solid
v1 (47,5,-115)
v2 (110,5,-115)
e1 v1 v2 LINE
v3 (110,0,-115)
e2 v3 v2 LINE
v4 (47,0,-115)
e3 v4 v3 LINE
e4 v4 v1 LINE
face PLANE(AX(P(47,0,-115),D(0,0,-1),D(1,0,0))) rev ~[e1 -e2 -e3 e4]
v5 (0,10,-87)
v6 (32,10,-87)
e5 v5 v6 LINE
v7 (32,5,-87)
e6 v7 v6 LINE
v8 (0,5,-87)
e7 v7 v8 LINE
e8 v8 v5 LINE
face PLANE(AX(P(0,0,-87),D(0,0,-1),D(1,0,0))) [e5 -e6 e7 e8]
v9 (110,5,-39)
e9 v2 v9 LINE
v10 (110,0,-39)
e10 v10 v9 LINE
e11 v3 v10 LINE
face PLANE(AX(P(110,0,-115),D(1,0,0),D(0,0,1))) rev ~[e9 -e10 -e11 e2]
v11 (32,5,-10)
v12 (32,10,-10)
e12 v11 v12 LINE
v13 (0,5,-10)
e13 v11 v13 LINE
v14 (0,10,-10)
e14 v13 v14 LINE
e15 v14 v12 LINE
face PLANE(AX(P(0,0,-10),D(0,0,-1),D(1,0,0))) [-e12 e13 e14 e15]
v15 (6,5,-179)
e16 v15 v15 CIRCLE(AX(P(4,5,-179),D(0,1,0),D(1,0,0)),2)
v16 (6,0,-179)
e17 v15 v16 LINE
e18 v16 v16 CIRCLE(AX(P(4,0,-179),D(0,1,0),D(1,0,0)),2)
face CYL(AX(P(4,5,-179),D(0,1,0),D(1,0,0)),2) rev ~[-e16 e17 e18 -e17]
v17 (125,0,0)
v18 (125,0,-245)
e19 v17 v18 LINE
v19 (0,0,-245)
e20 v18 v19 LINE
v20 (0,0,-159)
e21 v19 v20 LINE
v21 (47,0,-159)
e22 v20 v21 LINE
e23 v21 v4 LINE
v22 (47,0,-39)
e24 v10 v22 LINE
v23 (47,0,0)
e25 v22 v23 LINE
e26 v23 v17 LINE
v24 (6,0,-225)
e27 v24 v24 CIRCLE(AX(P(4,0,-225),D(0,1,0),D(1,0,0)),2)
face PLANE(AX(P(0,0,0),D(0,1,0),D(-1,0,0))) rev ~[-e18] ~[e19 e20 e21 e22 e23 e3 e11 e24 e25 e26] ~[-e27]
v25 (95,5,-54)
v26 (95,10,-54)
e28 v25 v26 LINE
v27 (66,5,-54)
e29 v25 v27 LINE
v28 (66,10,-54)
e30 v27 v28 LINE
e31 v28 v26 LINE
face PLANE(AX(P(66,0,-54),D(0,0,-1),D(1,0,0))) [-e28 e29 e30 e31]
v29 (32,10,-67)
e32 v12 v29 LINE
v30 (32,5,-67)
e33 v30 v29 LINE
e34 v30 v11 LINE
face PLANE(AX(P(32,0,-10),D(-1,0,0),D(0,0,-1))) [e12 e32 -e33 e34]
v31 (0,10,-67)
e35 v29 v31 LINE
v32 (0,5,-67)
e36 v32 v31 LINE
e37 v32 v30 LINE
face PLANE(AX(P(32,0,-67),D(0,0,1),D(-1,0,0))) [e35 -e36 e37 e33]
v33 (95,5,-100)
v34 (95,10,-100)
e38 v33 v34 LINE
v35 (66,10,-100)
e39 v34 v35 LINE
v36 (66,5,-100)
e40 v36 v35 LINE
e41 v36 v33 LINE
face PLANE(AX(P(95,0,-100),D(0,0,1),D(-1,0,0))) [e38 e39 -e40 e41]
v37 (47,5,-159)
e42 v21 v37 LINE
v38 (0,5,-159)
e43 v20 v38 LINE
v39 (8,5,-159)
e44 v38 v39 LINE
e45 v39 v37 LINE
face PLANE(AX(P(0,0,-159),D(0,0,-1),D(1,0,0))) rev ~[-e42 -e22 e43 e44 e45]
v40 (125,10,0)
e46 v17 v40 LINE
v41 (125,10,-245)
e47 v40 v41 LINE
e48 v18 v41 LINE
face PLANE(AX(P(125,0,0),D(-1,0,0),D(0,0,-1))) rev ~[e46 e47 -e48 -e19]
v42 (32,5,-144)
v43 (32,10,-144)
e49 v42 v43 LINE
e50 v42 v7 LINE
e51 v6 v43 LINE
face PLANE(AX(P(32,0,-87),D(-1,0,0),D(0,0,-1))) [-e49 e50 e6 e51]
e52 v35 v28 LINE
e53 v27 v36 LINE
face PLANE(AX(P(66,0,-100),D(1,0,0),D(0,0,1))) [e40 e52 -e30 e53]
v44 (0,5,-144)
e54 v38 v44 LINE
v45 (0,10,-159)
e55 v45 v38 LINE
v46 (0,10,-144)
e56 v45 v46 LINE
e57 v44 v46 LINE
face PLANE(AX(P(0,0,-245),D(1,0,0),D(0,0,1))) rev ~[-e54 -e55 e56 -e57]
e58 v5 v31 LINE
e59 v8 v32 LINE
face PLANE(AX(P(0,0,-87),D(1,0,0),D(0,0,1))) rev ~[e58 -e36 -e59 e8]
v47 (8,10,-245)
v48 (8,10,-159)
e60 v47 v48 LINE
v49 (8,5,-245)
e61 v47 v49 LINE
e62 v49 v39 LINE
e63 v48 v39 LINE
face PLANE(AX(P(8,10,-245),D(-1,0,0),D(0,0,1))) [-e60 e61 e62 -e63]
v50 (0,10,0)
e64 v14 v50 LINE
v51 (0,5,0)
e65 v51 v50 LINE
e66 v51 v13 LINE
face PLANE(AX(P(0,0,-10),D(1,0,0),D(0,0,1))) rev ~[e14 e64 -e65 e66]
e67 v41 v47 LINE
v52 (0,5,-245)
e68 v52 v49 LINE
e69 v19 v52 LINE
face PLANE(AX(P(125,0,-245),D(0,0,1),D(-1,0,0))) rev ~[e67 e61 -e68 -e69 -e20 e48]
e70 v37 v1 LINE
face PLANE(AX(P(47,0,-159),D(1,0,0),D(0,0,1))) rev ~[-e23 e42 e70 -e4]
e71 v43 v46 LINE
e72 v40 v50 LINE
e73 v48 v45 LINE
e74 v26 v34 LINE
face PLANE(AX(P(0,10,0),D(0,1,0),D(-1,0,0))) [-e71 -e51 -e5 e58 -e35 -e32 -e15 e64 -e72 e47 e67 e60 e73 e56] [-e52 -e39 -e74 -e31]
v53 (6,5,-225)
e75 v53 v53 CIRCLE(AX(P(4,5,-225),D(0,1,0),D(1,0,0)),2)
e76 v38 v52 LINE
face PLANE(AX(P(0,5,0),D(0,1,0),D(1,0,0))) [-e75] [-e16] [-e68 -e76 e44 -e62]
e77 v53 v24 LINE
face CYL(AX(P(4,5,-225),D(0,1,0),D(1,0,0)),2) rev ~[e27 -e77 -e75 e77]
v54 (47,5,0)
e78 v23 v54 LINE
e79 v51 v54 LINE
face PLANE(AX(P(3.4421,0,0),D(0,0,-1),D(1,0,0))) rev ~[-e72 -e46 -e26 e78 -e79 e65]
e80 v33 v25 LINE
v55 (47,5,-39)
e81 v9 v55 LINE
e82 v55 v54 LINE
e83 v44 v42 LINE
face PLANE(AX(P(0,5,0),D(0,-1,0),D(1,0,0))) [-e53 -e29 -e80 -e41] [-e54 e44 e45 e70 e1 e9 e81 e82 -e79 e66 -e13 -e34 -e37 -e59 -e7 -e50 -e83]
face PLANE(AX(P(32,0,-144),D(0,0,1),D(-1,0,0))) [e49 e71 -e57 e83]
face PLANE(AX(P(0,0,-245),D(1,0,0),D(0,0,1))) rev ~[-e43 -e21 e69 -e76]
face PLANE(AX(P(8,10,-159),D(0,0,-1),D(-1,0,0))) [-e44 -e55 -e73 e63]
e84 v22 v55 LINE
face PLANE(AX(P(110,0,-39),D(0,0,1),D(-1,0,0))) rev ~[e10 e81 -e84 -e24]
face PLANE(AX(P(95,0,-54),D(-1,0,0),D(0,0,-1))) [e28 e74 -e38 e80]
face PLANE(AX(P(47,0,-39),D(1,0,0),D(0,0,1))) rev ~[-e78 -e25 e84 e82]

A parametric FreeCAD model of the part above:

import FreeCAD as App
import Part
import Sketcher
Q = App.Units.Quantity


def add_polygon(sketch, points):
    """Adds a closed chain of lines whose ends are joined by coincident constraints."""
    first, n = sketch.GeometryCount, len(points)
    for a, b in zip(points, points[1:] + points[:1]):
        sketch.addGeometry(Part.LineSegment(App.Vector(*a, 0), App.Vector(*b, 0)), False)
    for i in range(n):
        sketch.addConstraint(Sketcher.Constraint("Coincident", first + i, 2, first + (i + 1) % n, 1))

doc = App.newDocument("Part")
body = doc.addObject("PartDesign::Body", "Body")

# Sketch on XZ plane
sketch1 = body.newObject("Sketcher::SketchObject", "Sketch")
sketch1.AttachmentSupport = (doc.getObject("XZ_Plane"), [""])
sketch1.MapMode = "FlatFace"
add_polygon(sketch1, [(0, 0), (125, 0), (125, -245), (0, -245), (0, -144), (32, -144), (32, -87), (0, -87), (0, -67), (32, -67), (32, -10), (0, -10)])  # lines 0-11
add_polygon(sketch1, [(66, -54), (66, -100), (95, -100), (95, -54)])  # lines 12-15
sketch1.addConstraint([
    Sketcher.Constraint("Horizontal", 0),
    Sketcher.Constraint("Vertical", 1),
    Sketcher.Constraint("Horizontal", 2),
    Sketcher.Constraint("Vertical", 3),
    Sketcher.Constraint("Horizontal", 4),
    Sketcher.Constraint("Vertical", 5),
    Sketcher.Constraint("Horizontal", 6),
    Sketcher.Constraint("Vertical", 7),
    Sketcher.Constraint("Horizontal", 8),
    Sketcher.Constraint("Vertical", 9),
    Sketcher.Constraint("Horizontal", 10),
    Sketcher.Constraint("Vertical", 11),
    Sketcher.Constraint("Vertical", 12),
    Sketcher.Constraint("Horizontal", 13),
    Sketcher.Constraint("Vertical", 14),
    Sketcher.Constraint("Horizontal", 15),
    Sketcher.Constraint("Coincident", 11, 2, -1, 1),
    Sketcher.Constraint("PointOnObject", 2, 2, -2),
    Sketcher.Constraint("PointOnObject", 6, 2, -2),
    Sketcher.Constraint("Vertical", 5, 2, 8, 2),
    Sketcher.Constraint("Equal", 5, 9),
    Sketcher.Constraint("DistanceX", 13, 1, 13, 2, Q("29 mm")),
    Sketcher.Constraint("DistanceY", 3, 1, 3, 2, Q("101 mm")),
    Sketcher.Constraint("DistanceY", 5, 1, 5, 2, Q("57 mm")),
    Sketcher.Constraint("DistanceY", 7, 1, 7, 2, Q("20 mm")),
    Sketcher.Constraint("DistanceY", 12, 2, 12, 1, Q("46 mm")),
    Sketcher.Constraint("DistanceX", 4, 2, 1, 2, Q("93 mm")),
    Sketcher.Constraint("DistanceX", 5, 2, 13, 2, Q("63 mm")),
    Sketcher.Constraint("DistanceX", 0, 1, 0, 2, Q("125 mm")),
    Sketcher.Constraint("DistanceY", 1, 2, 1, 1, Q("245 mm")),
    Sketcher.Constraint("DistanceY", 12, 2, -1, 1, Q("100 mm")),
])
pad1 = body.newObject("PartDesign::Pad", "Pad")
pad1.Profile = sketch1
pad1.Length = 10
pad1.Reversed = True

# Sketch on XZ plane
sketch2 = body.newObject("Sketcher::SketchObject", "Sketch001")
sketch2.AttachmentSupport = (doc.getObject("XZ_Plane"), [""])
sketch2.MapMode = "FlatFace"
add_polygon(sketch2, [(110, -115), (110, -39), (47, -39), (47, 0), (0, 0), (0, -159), (47, -159), (47, -115)])  # lines 0-7
add_polygon(sketch2, [(95, -54), (95, -100), (66, -100), (66, -54)])  # lines 8-11
sketch2.addConstraint([
    Sketcher.Constraint("Vertical", 0),
    Sketcher.Constraint("Horizontal", 1),
    Sketcher.Constraint("Vertical", 2),
    Sketcher.Constraint("Horizontal", 3),
    Sketcher.Constraint("Vertical", 4),
    Sketcher.Constraint("Horizontal", 5),
    Sketcher.Constraint("Vertical", 6),
    Sketcher.Constraint("Horizontal", 7),
    Sketcher.Constraint("Vertical", 8),
    Sketcher.Constraint("Horizontal", 9),
    Sketcher.Constraint("Vertical", 10),
    Sketcher.Constraint("Horizontal", 11),
    Sketcher.Constraint("Coincident", 3, 2, -1, 1),
    Sketcher.Constraint("Vertical", 2, 2, 5, 2),
    Sketcher.Constraint("DistanceX", 8, 2, 7, 2, Q("15 mm")),
    Sketcher.Constraint("DistanceY", 7, 2, 8, 2, Q("15 mm")),
    Sketcher.Constraint("DistanceX", 6, 2, 9, 2, Q("19 mm")),
    Sketcher.Constraint("DistanceY", 10, 2, 1, 2, Q("15 mm")),
    Sketcher.Constraint("DistanceX", 1, 2, 1, 1, Q("63 mm")),
    Sketcher.Constraint("DistanceX", 3, 2, 3, 1, Q("47 mm")),
    Sketcher.Constraint("DistanceY", 0, 1, 0, 2, Q("76 mm")),
    Sketcher.Constraint("DistanceY", 2, 1, 2, 2, Q("39 mm")),
    Sketcher.Constraint("DistanceY", 4, 2, 4, 1, Q("159 mm")),
])
pocket1 = body.newObject("PartDesign::Pocket", "Pocket")
pocket1.Profile = sketch2
pocket1.Length = 5

# Sketch on XZ plane
sketch3 = body.newObject("Sketcher::SketchObject", "Sketch002")
sketch3.AttachmentSupport = (doc.getObject("XZ_Plane"), [""])
sketch3.MapMode = "FlatFace"
sketch3.AttachmentOffset = App.Placement(App.Vector(0, 0, -10), App.Rotation())
add_polygon(sketch3, [(8, -245), (0, -245), (0, -159), (8, -159)])  # lines 0-3
sketch3.addConstraint([
    Sketcher.Constraint("Horizontal", 0),
    Sketcher.Constraint("Vertical", 1),
    Sketcher.Constraint("Horizontal", 2),
    Sketcher.Constraint("Vertical", 3),
    Sketcher.Constraint("PointOnObject", 0, 2, -2),
    Sketcher.Constraint("DistanceX", 0, 2, 0, 1, Q("8 mm")),
    Sketcher.Constraint("DistanceY", 1, 1, 1, 2, Q("86 mm")),
    Sketcher.Constraint("DistanceY", 0, 2, -1, 1, Q("245 mm")),
])
pocket2 = body.newObject("PartDesign::Pocket", "Pocket001")
pocket2.Profile = sketch3
pocket2.Length = 5
pocket2.Reversed = True

# Sketch on XZ plane
sketch4 = body.newObject("Sketcher::SketchObject", "Sketch003")
sketch4.AttachmentSupport = (doc.getObject("XZ_Plane"), [""])
sketch4.MapMode = "FlatFace"
sketch4.AttachmentOffset = App.Placement(App.Vector(0, 0, -5), App.Rotation())
sketch4.addGeometry([
    Part.Circle(App.Vector(4, -179, 0), App.Vector(0, 0, 1), 2),
    Part.Circle(App.Vector(4, -225, 0), App.Vector(0, 0, 1), 2),
], False)
sketch4.addConstraint([
    Sketcher.Constraint("Equal", 0, 1),
    Sketcher.Constraint("Vertical", 0, 3, 1, 3),
    Sketcher.Constraint("Diameter", 0, Q("4 mm")),
    Sketcher.Constraint("DistanceX", -1, 1, 0, 3, Q("4 mm")),
    Sketcher.Constraint("DistanceY", 0, 3, -1, 1, Q("179 mm")),
    Sketcher.Constraint("DistanceY", 1, 3, -1, 1, Q("225 mm")),
])
pocket3 = body.newObject("PartDesign::Pocket", "Pocket002")
pocket3.Profile = sketch4
pocket3.Length = 5
pocket3.Reversed = True

doc.recompute()
